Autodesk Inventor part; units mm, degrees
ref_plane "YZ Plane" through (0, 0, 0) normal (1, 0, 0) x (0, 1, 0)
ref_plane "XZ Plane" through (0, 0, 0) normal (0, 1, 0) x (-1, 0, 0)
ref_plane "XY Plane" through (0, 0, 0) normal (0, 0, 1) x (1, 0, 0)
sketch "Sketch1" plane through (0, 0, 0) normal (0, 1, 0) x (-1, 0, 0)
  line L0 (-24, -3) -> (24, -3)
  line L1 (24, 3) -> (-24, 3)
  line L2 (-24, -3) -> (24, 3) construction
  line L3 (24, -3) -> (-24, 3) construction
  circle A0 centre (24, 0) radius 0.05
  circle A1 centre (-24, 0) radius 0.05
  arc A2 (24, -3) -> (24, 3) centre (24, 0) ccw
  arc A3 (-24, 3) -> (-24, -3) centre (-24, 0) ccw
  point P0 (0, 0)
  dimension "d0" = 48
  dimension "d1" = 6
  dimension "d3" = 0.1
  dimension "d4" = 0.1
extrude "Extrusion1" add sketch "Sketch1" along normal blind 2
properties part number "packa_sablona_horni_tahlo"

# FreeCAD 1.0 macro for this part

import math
import FreeCAD as App
import Part
import Sketcher

doc = App.newDocument("Part")
params = doc.addObject("Spreadsheet::Sheet", "Params")
for row, (alias, value) in enumerate([
    ("sketch1_radius", "3 mm"),
    ("sketch1_diameter", "0.1 mm"),
    ("sketch1_width", "48 mm"),
    ("pad1_length", "2 mm"),
], start=1):
    params.set(f"A{row}", alias)
    params.set(f"B{row}", "=" + value)
    params.setAlias(f"B{row}", alias)

body = doc.addObject("PartDesign::Body", "Body")

# Sketch on XZ plane
sketch1 = body.newObject("Sketcher::SketchObject", "Sketch")
sketch1.AttachmentSupport = (doc.getObject("XZ_Plane"), [""])
sketch1.MapMode = "FlatFace"
sketch1.addGeometry([
    Part.ArcOfCircle(Part.Circle(App.Vector(24, 0, 0), App.Vector(0, 0, 1), 3), math.radians(-90), math.radians(90)),  # 0
    Part.LineSegment(App.Vector(24, -3, 0), App.Vector(-24, -3, 0)),  # 1
    Part.ArcOfCircle(Part.Circle(App.Vector(-24, 0, 0), App.Vector(0, 0, 1), 3), math.radians(90), math.radians(270)),  # 2
    Part.LineSegment(App.Vector(-24, 3, 0), App.Vector(24, 3, 0)),  # 3
    Part.Circle(App.Vector(24, 0, 0), App.Vector(0, 0, 1), 0.05),  # 4
    Part.Circle(App.Vector(-24, 0, 0), App.Vector(0, 0, 1), 0.05),  # 5
], False)
sketch1.addConstraint([
    Sketcher.Constraint("Tangent", 0, 1, 1, 1),
    Sketcher.Constraint("Tangent", 1, 2, 2, 2),
    Sketcher.Constraint("Tangent", 2, 1, 3, 1),
    Sketcher.Constraint("Tangent", 3, 2, 0, 2),
    Sketcher.Constraint("Horizontal", 1),
    Sketcher.Constraint("Horizontal", 3),
    Sketcher.Constraint("Coincident", 4, 3, 0, 3),
    Sketcher.Constraint("Coincident", 5, 3, 2, 3),
    Sketcher.Constraint("Equal", 4, 5),
    Sketcher.Constraint("Symmetric", 0, 3, 2, 3, -1, 1),
    Sketcher.Constraint("Radius", 0, 3.0),
    Sketcher.Constraint("Diameter", 4, 0.1),
    Sketcher.Constraint("DistanceX", 1, 2, 1, 1, 48.0),
])
sketch1.setExpression("Constraints[10]", "Params.sketch1_radius")
sketch1.setExpression("Constraints[11]", "Params.sketch1_diameter")
sketch1.setExpression("Constraints[12]", "Params.sketch1_width")
pad1 = body.newObject("PartDesign::Pad", "Pad")
pad1.Profile = sketch1
pad1.setExpression("Length", "Params.pad1_length")
pad1.Reversed = True

doc.recompute()
